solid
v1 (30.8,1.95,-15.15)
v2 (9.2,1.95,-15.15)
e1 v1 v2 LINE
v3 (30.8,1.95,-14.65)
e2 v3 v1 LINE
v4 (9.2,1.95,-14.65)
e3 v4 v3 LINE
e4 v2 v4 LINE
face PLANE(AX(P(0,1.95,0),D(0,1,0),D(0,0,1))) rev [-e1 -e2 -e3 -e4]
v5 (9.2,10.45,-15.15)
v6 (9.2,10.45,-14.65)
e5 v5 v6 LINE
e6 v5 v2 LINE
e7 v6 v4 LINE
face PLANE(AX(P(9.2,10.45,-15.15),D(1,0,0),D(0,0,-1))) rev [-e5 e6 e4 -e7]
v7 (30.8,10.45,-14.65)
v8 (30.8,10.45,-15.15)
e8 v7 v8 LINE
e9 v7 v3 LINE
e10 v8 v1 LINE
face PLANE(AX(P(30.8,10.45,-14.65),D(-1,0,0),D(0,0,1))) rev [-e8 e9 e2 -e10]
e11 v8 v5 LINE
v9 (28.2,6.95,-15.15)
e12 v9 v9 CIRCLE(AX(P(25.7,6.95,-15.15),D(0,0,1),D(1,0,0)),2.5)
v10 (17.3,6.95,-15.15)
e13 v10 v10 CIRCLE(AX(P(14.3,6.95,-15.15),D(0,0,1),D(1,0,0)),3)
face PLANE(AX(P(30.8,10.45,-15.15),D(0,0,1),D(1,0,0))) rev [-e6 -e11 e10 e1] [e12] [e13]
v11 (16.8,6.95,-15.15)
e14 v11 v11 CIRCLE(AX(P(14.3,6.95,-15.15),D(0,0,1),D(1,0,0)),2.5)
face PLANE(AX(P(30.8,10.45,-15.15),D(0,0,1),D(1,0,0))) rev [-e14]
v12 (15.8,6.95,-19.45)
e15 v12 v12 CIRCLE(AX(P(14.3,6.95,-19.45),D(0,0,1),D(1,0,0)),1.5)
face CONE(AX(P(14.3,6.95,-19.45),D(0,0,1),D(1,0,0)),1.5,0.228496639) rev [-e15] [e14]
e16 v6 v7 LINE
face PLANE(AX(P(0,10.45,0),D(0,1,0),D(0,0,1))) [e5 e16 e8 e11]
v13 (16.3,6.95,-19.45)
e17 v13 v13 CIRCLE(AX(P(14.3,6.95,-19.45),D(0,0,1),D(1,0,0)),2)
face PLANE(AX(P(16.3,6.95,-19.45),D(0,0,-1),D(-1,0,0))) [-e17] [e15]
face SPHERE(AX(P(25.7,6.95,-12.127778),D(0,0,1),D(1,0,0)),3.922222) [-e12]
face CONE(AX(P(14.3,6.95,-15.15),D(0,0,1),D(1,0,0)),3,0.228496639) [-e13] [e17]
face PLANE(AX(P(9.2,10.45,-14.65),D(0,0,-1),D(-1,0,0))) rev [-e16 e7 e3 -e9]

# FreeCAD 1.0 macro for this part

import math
import FreeCAD as App
import Part
import Sketcher


def add_polygon(sketch, points):
    """Adds a closed chain of lines whose ends are joined by coincident constraints."""
    first, n = sketch.GeometryCount, len(points)
    for a, b in zip(points, points[1:] + points[:1]):
        sketch.addGeometry(Part.LineSegment(App.Vector(*a, 0), App.Vector(*b, 0)), False)
    for i in range(n):
        sketch.addConstraint(Sketcher.Constraint("Coincident", first + i, 2, first + (i + 1) % n, 1))

doc = App.newDocument("Part")
body = doc.addObject("PartDesign::Body", "Body")

# Sketch on XZ plane
sketch1 = body.newObject("Sketcher::SketchObject", "Sketch")
sketch1.AttachmentSupport = (doc.getObject("XZ_Plane"), [""])
sketch1.MapMode = "FlatFace"
sketch1.AttachmentOffset = App.Placement(App.Vector(0, 0, -1.95), App.Rotation())
add_polygon(sketch1, [(9.2, -15.2), (9.2, -14.7), (30.8, -14.7), (30.8, -15.2)])  # lines 0-3
sketch1.addConstraint([
    Sketcher.Constraint("Vertical", 0),
    Sketcher.Constraint("Horizontal", 1),
    Sketcher.Constraint("Vertical", 2),
    Sketcher.Constraint("Horizontal", 3),
    Sketcher.Constraint("DistanceX", 1, 1, 1, 2, 21.6),
    Sketcher.Constraint("DistanceY", 0, 1, 0, 2, 0.5),
    Sketcher.Constraint("DistanceX", -1, 1, 0, 2, 9.2),
    Sketcher.Constraint("DistanceY", 0, 2, -1, 1, 14.65),
])
pad1 = body.newObject("PartDesign::Pad", "Pad")
pad1.Profile = sketch1
pad1.Length = 8.5
pad1.Reversed = True

# Sketch on XZ plane
sketch2 = body.newObject("Sketcher::SketchObject", "Sketch001")
sketch2.AttachmentSupport = (doc.getObject("XZ_Plane"), [""])
sketch2.MapMode = "FlatFace"
sketch2.AttachmentOffset = App.Placement(App.Vector(0, 0, -6.95), App.Rotation())
add_polygon(sketch2, [(16.8, -15.2), (17.3, -15.2), (16.3, -19.4), (15.8, -19.4)])  # lines 0-3
sketch2.addGeometry(Part.LineSegment(App.Vector(14.3, -15.2, 0), App.Vector(14.3, -19.4, 0)), True)  # axis
sketch2.addConstraint([
    Sketcher.Constraint("Horizontal", 0),
    Sketcher.Constraint("Horizontal", 2),
    Sketcher.Constraint("Vertical", 4),
    Sketcher.Constraint("Parallel", 1, 3),
    Sketcher.Constraint("Horizontal", 3, 2, 4, 1),
    Sketcher.Constraint("Horizontal", 2, 2, 4, 2),
    Sketcher.Constraint("DistanceX", 0, 1, 0, 2, 0.5),
    Sketcher.Constraint("DistanceY", 4, 2, 4, 1, 4.3),
    Sketcher.Constraint("DistanceX", 1, 2, 0, 2, 1.0),
    Sketcher.Constraint("DistanceX", 4, 1, 0, 2, 3.0),
    Sketcher.Constraint("DistanceX", -1, 1, 0, 2, 17.3),
    Sketcher.Constraint("DistanceY", 0, 2, -1, 1, 15.15),
])
revolution = body.newObject("PartDesign::Revolution", "Revolution")
revolution.Profile = sketch2
revolution.ReferenceAxis = (sketch2, ["Axis0"])
revolution.Angle = 360

# Sketch on XZ plane
sketch3 = body.newObject("Sketcher::SketchObject", "Sketch002")
sketch3.AttachmentSupport = (doc.getObject("XZ_Plane"), [""])
sketch3.MapMode = "FlatFace"
sketch3.AttachmentOffset = App.Placement(App.Vector(0, 0, -6.95), App.Rotation())
sketch3.addGeometry([
    Part.LineSegment(App.Vector(25.7, -15.2, 0), App.Vector(28.2, -15.2, 0)),
    Part.ArcOfCircle(Part.Circle(App.Vector(25.7, -12.1, 0), App.Vector(0, 0, 1), 3.9), math.radians(-90), math.radians(-50)),
    Part.LineSegment(App.Vector(25.7, -16.1, 0), App.Vector(25.7, -15.2, 0)),
], False)
sketch3.addGeometry(Part.LineSegment(App.Vector(25.7, -12.1, 0), App.Vector(25.7, -16.1, 0)), True)  # axis
sketch3.addConstraint([
    Sketcher.Constraint("Coincident", 0, 2, 1, 2),
    Sketcher.Constraint("Coincident", 1, 1, 2, 1),
    Sketcher.Constraint("Coincident", 2, 2, 0, 1),
    Sketcher.Constraint("Horizontal", 0),
    Sketcher.Constraint("Vertical", 2),
    Sketcher.Constraint("Vertical", 3),
    Sketcher.Constraint("Coincident", 3, 1, 1, 3),
    Sketcher.Constraint("Coincident", 3, 2, 1, 1),
    Sketcher.Constraint("DistanceX", 0, 1, 0, 2, 2.5),
    Sketcher.Constraint("DistanceY", 2, 1, 2, 2, 0.9),
    Sketcher.Constraint("DistanceX", -1, 1, 1, 3, 25.7),
    Sketcher.Constraint("DistanceY", 0, 2, -1, 1, 15.15),
])
revolution2 = body.newObject("PartDesign::Revolution", "Revolution001")
revolution2.Profile = sketch3
revolution2.ReferenceAxis = (sketch3, ["Axis0"])
revolution2.Angle = 360

doc.recompute()
